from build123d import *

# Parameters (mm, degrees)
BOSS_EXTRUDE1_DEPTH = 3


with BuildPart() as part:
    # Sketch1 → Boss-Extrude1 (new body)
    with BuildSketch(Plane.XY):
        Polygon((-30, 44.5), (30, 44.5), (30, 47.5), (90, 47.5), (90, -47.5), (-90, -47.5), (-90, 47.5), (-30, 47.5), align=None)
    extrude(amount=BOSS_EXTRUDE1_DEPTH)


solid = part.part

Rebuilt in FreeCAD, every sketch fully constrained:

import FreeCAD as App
import Part
import Sketcher

doc = App.newDocument("Part")
body = doc.addObject("PartDesign::Body", "Body")

sketch1 = body.newObject("Sketcher::SketchObject", "Sketch")
sketch1.AttachmentSupport = (doc.getObject("XY_Plane"), [""])
sketch1.MapMode = "FlatFace"
sketch1.addGeometry(Part.LineSegment(App.Vector(30, 44.5, 0), App.Vector(-30, 44.5, 0)), False)
sketch1.addGeometry(Part.LineSegment(App.Vector(-30, 44.5, 0), App.Vector(-30, 47.5, 0)), False)
sketch1.addGeometry(Part.LineSegment(App.Vector(-30, 47.5, 0), App.Vector(-90, 47.5, 0)), False)
sketch1.addGeometry(Part.LineSegment(App.Vector(-90, 47.5, 0), App.Vector(-90, -47.5, 0)), False)
sketch1.addGeometry(Part.LineSegment(App.Vector(-90, -47.5, 0), App.Vector(90, -47.5, 0)), False)
sketch1.addGeometry(Part.LineSegment(App.Vector(90, -47.5, 0), App.Vector(90, 47.5, 0)), False)
sketch1.addGeometry(Part.LineSegment(App.Vector(90, 47.5, 0), App.Vector(30, 47.5, 0)), False)
sketch1.addGeometry(Part.LineSegment(App.Vector(30, 47.5, 0), App.Vector(30, 44.5, 0)), False)
sketch1.addConstraint(Sketcher.Constraint("Coincident", 0, 2, 1, 1))
sketch1.addConstraint(Sketcher.Constraint("Coincident", 1, 2, 2, 1))
sketch1.addConstraint(Sketcher.Constraint("Coincident", 2, 2, 3, 1))
sketch1.addConstraint(Sketcher.Constraint("Coincident", 3, 2, 4, 1))
sketch1.addConstraint(Sketcher.Constraint("Coincident", 4, 2, 5, 1))
sketch1.addConstraint(Sketcher.Constraint("Coincident", 5, 2, 6, 1))
sketch1.addConstraint(Sketcher.Constraint("Coincident", 6, 2, 7, 1))
sketch1.addConstraint(Sketcher.Constraint("Coincident", 7, 2, 0, 1))
sketch1.addConstraint(Sketcher.Constraint("Horizontal", 0))
sketch1.addConstraint(Sketcher.Constraint("Vertical", 1))
sketch1.addConstraint(Sketcher.Constraint("Horizontal", 2))
sketch1.addConstraint(Sketcher.Constraint("Vertical", 3))
sketch1.addConstraint(Sketcher.Constraint("Horizontal", 4))
sketch1.addConstraint(Sketcher.Constraint("Vertical", 5))
sketch1.addConstraint(Sketcher.Constraint("Horizontal", 6))
sketch1.addConstraint(Sketcher.Constraint("Vertical", 7))
sketch1.addConstraint(Sketcher.Constraint("Symmetric", 2, 2, 4, 2, -1, 1))
sketch1.addConstraint(Sketcher.Constraint("Symmetric", 1, 2, 6, 2, -2))
sketch1.addConstraint(Sketcher.Constraint("Equal", 0, 2))
sketch1.addConstraint(Sketcher.Constraint("DistanceX", 0, 2, 0, 1, 60.0))
sketch1.addConstraint(Sketcher.Constraint("DistanceY", 1, 1, 1, 2, 3.0))
sketch1.addConstraint(Sketcher.Constraint("DistanceY", 3, 2, 3, 1, 95.0))
pad1 = body.newObject("PartDesign::Pad", "Pad")
pad1.Profile = sketch1
pad1.Length = 3

doc.recompute()
